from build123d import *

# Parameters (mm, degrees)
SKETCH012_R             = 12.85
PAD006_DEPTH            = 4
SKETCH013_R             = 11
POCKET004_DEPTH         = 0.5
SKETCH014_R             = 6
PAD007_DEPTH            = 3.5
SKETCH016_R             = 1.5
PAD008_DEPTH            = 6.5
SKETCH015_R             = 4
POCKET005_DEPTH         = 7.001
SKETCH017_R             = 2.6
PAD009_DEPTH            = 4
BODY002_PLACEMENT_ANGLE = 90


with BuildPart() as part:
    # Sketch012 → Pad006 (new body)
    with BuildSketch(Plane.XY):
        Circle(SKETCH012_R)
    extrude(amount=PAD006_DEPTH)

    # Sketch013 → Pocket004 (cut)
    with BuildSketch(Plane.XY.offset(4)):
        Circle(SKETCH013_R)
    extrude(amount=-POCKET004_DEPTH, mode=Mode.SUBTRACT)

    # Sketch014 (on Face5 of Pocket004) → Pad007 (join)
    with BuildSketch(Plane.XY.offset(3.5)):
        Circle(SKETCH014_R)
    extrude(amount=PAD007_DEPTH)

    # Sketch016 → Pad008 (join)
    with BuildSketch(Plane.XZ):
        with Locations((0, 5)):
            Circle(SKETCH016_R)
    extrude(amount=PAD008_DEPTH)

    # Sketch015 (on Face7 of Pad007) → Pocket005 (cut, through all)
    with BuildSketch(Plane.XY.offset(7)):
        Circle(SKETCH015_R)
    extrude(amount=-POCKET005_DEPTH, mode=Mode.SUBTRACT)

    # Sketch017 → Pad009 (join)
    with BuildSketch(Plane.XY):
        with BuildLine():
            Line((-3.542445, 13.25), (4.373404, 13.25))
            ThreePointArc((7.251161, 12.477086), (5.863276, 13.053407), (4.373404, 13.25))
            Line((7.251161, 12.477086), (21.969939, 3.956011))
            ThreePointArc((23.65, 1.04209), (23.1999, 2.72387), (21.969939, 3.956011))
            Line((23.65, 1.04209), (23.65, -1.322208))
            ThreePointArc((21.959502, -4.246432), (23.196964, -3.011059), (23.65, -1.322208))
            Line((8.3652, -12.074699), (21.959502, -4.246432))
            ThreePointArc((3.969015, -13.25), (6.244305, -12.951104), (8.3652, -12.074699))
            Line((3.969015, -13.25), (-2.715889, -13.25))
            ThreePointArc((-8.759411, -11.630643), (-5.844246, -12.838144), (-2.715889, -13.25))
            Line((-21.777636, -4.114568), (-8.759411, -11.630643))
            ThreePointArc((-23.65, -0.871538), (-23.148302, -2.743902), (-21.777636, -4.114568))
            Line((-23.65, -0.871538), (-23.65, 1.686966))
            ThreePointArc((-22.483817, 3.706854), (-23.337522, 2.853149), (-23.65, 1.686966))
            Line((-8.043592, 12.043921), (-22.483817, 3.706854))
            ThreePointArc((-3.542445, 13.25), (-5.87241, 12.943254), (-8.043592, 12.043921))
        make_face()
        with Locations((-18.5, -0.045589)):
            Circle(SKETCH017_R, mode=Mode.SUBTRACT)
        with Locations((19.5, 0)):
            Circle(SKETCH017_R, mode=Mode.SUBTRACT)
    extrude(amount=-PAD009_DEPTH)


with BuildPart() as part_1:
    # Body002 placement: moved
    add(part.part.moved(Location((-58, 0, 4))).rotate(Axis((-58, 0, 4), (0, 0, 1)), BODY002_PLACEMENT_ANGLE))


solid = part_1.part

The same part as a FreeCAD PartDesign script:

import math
import FreeCAD as App
import Part
import Sketcher
from FreeCAD import Vector
Q = App.Units.Quantity

doc = App.newDocument("Part")
body = doc.addObject("PartDesign::Body", "Body")

# Sketch on XY plane
sketch1 = body.newObject("Sketcher::SketchObject", "Sketch")
sketch1.AttachmentSupport = (doc.getObject("XY_Plane"), [""])
sketch1.MapMode = "FlatFace"
sketch1.addGeometry(Part.Circle(Vector(0, 0, 0), Vector(0, 0, 1), 13), False)
sketch1.addConstraint([
    Sketcher.Constraint("Coincident", 0, 3, -1, 1),
    Sketcher.Constraint("Diameter", 0, 25.7),
])
pad1 = body.newObject("PartDesign::Pad", "Pad")
pad1.Profile = sketch1
pad1.Length = 4

# Sketch on XY plane
sketch2 = body.newObject("Sketcher::SketchObject", "Sketch001")
sketch2.AttachmentSupport = (doc.getObject("XY_Plane"), [""])
sketch2.MapMode = "FlatFace"
sketch2.AttachmentOffset = App.Placement(Vector(0, 0, 4), App.Rotation())
sketch2.addGeometry(Part.Circle(Vector(0, 0, 0), Vector(0, 0, 1), 11), False)
sketch2.addConstraint([
    Sketcher.Constraint("Coincident", 0, 3, -1, 1),
    Sketcher.Constraint("Diameter", 0, 22.0),
])
pocket1 = body.newObject("PartDesign::Pocket", "Pocket")
pocket1.Profile = sketch2
pocket1.Length = 0.5

# Sketch on XY plane
sketch3 = body.newObject("Sketcher::SketchObject", "Sketch002")
sketch3.AttachmentSupport = (doc.getObject("XY_Plane"), [""])
sketch3.MapMode = "FlatFace"
sketch3.AttachmentOffset = App.Placement(Vector(0, 0, 3.5), App.Rotation())
sketch3.addGeometry(Part.Circle(Vector(0, 0, 0), Vector(0, 0, 1), 6), False)
sketch3.addConstraint([
    Sketcher.Constraint("Coincident", 0, 3, -1, 1),
    Sketcher.Constraint("Diameter", 0, 12.0),
])
pad2 = body.newObject("PartDesign::Pad", "Pad001")
pad2.Profile = sketch3
pad2.Length = 3.5

# Sketch on XZ plane
sketch4 = body.newObject("Sketcher::SketchObject", "Sketch003")
sketch4.AttachmentSupport = (doc.getObject("XZ_Plane"), [""])
sketch4.MapMode = "FlatFace"
sketch4.addGeometry(Part.Circle(Vector(0, 5, 0), Vector(0, 0, 1), 1.5), False)
sketch4.addConstraint([
    Sketcher.Constraint("PointOnObject", 0, 3, -2),
    Sketcher.Constraint("Diameter", 0, 3.0),
    Sketcher.Constraint("DistanceY", -1, 1, 0, 3, 5.0),
])
pad3 = body.newObject("PartDesign::Pad", "Pad002")
pad3.Profile = sketch4
pad3.Length = 6.5

# Sketch on XY plane
sketch5 = body.newObject("Sketcher::SketchObject", "Sketch004")
sketch5.AttachmentSupport = (doc.getObject("XY_Plane"), [""])
sketch5.MapMode = "FlatFace"
sketch5.AttachmentOffset = App.Placement(Vector(0, 0, 7), App.Rotation())
sketch5.addGeometry(Part.Circle(Vector(0, 0, 0), Vector(0, 0, 1), 4), False)
sketch5.addConstraint([
    Sketcher.Constraint("Coincident", 0, 3, -1, 1),
    Sketcher.Constraint("Diameter", 0, 8.0),
])
pocket2 = body.newObject("PartDesign::Pocket", "Pocket001")
pocket2.Profile = sketch5
pocket2.Type = "ThroughAll"

# Sketch on XY plane
sketch6 = body.newObject("Sketcher::SketchObject", "Sketch005")
sketch6.AttachmentSupport = (doc.getObject("XY_Plane"), [""])
sketch6.MapMode = "FlatFace"
sketch6.addGeometry([
    Part.LineSegment(Vector(4.4, 13.2, 0), Vector(-3.5, 13.2, 0)),  # 0
    Part.ArcOfCircle(Part.Circle(Vector(-3.5, 4.2, 0), Vector(0, 0, 1), 9), math.radians(90), math.radians(120)),  # 1
    Part.LineSegment(Vector(-8, 12, 0), Vector(-22.5, 3.7, 0)),  # 2
    Part.ArcOfCircle(Part.Circle(Vector(-21.3, 1.7, 0), Vector(0, 0, 1), 2.3), math.radians(120), math.radians(180)),  # 3
    Part.LineSegment(Vector(-23.6, 1.7, 0), Vector(-23.6, -0.9, 0)),  # 4
    Part.ArcOfCircle(Part.Circle(Vector(-19.9, -0.9, 0), Vector(0, 0, 1), 3.7), math.radians(180), math.radians(240)),  # 5
    Part.LineSegment(Vector(-21.8, -4.1, 0), Vector(-8.8, -11.6, 0)),  # 6
    Part.ArcOfCircle(Part.Circle(Vector(-2.7, -1.2, 0), Vector(0, 0, 1), 12.1), math.radians(-120), math.radians(-90)),  # 7
    Part.LineSegment(Vector(-2.7, -13.2, 0), Vector(4, -13.2, 0)),  # 8
    Part.ArcOfCircle(Part.Circle(Vector(4, -4.4, 0), Vector(0, 0, 1), 8.8), math.radians(-90), math.radians(-60)),  # 9
    Part.LineSegment(Vector(8.4, -12.1, 0), Vector(22, -4.2, 0)),  # 10
    Part.ArcOfCircle(Part.Circle(Vector(20.3, -1.3, 0), Vector(0, 0, 1), 3.4), math.radians(-60), math.radians(0)),  # 11
    Part.LineSegment(Vector(23.6, -1.3, 0), Vector(23.6, 1, 0)),  # 12
    Part.ArcOfCircle(Part.Circle(Vector(20.3, 1, 0), Vector(0, 0, 1), 3.4), math.radians(0), math.radians(60)),  # 13
    Part.LineSegment(Vector(22, 4, 0), Vector(7.3, 12.5, 0)),  # 14
    Part.ArcOfCircle(Part.Circle(Vector(4.4, 7.5, 0), Vector(0, 0, 1), 5.7), math.radians(60), math.radians(90)),  # 15
    Part.Circle(Vector(-18.5, 0, 0), Vector(0, 0, 1), 2.6),  # 16
    Part.Circle(Vector(19.5, 0, 0), Vector(0, 0, 1), 2.6),  # 17
], False)
sketch6.addConstraint([
    Sketcher.Constraint("Tangent", 0, 2, 1, 1),
    Sketcher.Constraint("Tangent", 1, 2, 2, 1),
    Sketcher.Constraint("Tangent", 2, 2, 3, 1),
    Sketcher.Constraint("Tangent", 3, 2, 4, 1),
    Sketcher.Constraint("Tangent", 4, 2, 5, 1),
    Sketcher.Constraint("Tangent", 5, 2, 6, 1),
    Sketcher.Constraint("Tangent", 6, 2, 7, 1),
    Sketcher.Constraint("Tangent", 7, 2, 8, 1),
    Sketcher.Constraint("Tangent", 8, 2, 9, 1),
    Sketcher.Constraint("Tangent", 9, 2, 10, 1),
    Sketcher.Constraint("Tangent", 10, 2, 11, 1),
    Sketcher.Constraint("Tangent", 11, 2, 12, 1),
    Sketcher.Constraint("Tangent", 12, 2, 13, 1),
    Sketcher.Constraint("Tangent", 13, 2, 14, 1),
    Sketcher.Constraint("Tangent", 14, 2, 15, 1),
    Sketcher.Constraint("Tangent", 15, 2, 0, 1),
    Sketcher.Constraint("Horizontal", 0),
    Sketcher.Constraint("Vertical", 4),
    Sketcher.Constraint("Horizontal", 8),
    Sketcher.Constraint("Vertical", 12),
    Sketcher.Constraint("Equal", 16, 17),
    Sketcher.Constraint("PointOnObject", 17, 3, -1),
    Sketcher.Constraint("Diameter", 16, 5.2),
    Sketcher.Constraint("Angle", 2, Q("-150.000002 deg")),
    Sketcher.Constraint("Angle", 6, Q("-29.999998 deg")),
    Sketcher.Constraint("DistanceX", 16, 3, -1, 1, 18.5),
    Sketcher.Constraint("DistanceX", -1, 1, 17, 3, 19.5),
    Sketcher.Constraint("Radius", 1, 9.002299),
    Sketcher.Constraint("DistanceY", -1, 1, 0, 2, 13.25),
    Sketcher.Constraint("DistanceX", 3, 2, -1, 1, 23.65),
    Sketcher.Constraint("DistanceY", 7, 2, -1, 1, 13.25),
    Sketcher.Constraint("DistanceX", -1, 1, 11, 2, 23.65),
    Sketcher.Constraint("Radius", 11, 3.374411),
    Sketcher.Constraint("Radius", 3, 2.332366),
    Sketcher.Constraint("Radius", 5, 3.744727),
    Sketcher.Constraint("Radius", 7, 12.087042),
    Sketcher.Constraint("Radius", 9, 8.809566),
    Sketcher.Constraint("Radius", 13, 3.367005),
    Sketcher.Constraint("Radius", 15, 5.743777),
    Sketcher.Constraint("DistanceY", 9, 3, 10, 2, 0.194002),
    Sketcher.Constraint("DistanceX", 0, 2, 0, 1, 7.915849),
    Sketcher.Constraint("DistanceX", -1, 1, 9, 2, 8.3652),
    Sketcher.Constraint("DistanceY", 9, 3, 3, 3, 6.127399),
    Sketcher.Constraint("DistanceY", 11, 3, 12, 2, 2.364298),
    Sketcher.Constraint("Distance", 6, 15.032151),
    Sketcher.Constraint("DistanceY", 16, 3, -1, 1, 0.045589),
])
pad4 = body.newObject("PartDesign::Pad", "Pad003")
pad4.Profile = sketch6
pad4.Length = 4
pad4.Reversed = True
body2 = doc.addObject("PartDesign::Body", "Body001")
doc.recompute()

body.Placement = App.Placement(Vector(-58, 0, 4), App.Rotation(Vector(0, 0, 1), 90))
boolean = body2.newObject("PartDesign::Boolean", "Boolean")
boolean.Type = "Fuse"
boolean.addObjects([body])

doc.recompute()
